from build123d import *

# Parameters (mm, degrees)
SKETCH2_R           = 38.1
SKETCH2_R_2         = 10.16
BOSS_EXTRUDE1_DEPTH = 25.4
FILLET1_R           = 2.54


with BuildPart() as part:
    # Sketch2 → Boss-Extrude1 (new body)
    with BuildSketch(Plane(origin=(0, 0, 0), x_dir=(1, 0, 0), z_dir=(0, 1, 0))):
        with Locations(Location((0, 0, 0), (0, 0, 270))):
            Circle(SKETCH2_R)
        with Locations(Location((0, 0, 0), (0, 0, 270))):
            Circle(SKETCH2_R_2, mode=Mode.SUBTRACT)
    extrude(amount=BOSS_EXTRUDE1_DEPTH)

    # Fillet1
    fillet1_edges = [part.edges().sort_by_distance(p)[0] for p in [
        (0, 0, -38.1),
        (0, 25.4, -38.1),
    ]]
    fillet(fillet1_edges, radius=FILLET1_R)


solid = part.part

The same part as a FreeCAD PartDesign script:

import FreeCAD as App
import Part
import Sketcher

V = App.Vector
Q = App.Units.Quantity


def edges_at(feature, points):
    """Names of the edges that pass closest to the given points."""
    edges = feature.Shape.Edges
    near = lambda p: min(range(len(edges)), key=lambda i: edges[i].distToShape(Part.Vertex(*p))[0])
    return sorted({f"Edge{near(p) + 1}" for p in points})

doc = App.newDocument("Part")
body = doc.addObject("PartDesign::Body", "Body")

sketch1 = body.newObject("Sketcher::SketchObject", "Sketch")
sketch1.AttachmentSupport = (doc.getObject("XZ_Plane"), [""])
sketch1.MapMode = "FlatFace"
sketch1.addGeometry([
    Part.Circle(V(0, 0, 0), V(0, 0, 1), 38),
    Part.Circle(V(0, 0, 0), V(0, 0, 1), 10),
], False)
sketch1.addConstraint([
    Sketcher.Constraint("Coincident", 0, 3, -1, 1),
    Sketcher.Constraint("Coincident", 1, 3, -1, 1),
    Sketcher.Constraint("Diameter", 0, Q("3 in")),
    Sketcher.Constraint("Diameter", 1, Q("0.8 in")),
])
pad1 = body.newObject("PartDesign::Pad", "Pad")
pad1.Profile = sketch1
pad1.Length = Q("1 in")
pad1.Reversed = True
doc.recompute()

fillet = body.newObject("PartDesign::Fillet", "Fillet")
fillet.Base = (pad1, edges_at(pad1, [(0, 0, -38.1), (0, 25.4, -38.1)]))
fillet.Radius = Q("0.1 in")

doc.recompute()
